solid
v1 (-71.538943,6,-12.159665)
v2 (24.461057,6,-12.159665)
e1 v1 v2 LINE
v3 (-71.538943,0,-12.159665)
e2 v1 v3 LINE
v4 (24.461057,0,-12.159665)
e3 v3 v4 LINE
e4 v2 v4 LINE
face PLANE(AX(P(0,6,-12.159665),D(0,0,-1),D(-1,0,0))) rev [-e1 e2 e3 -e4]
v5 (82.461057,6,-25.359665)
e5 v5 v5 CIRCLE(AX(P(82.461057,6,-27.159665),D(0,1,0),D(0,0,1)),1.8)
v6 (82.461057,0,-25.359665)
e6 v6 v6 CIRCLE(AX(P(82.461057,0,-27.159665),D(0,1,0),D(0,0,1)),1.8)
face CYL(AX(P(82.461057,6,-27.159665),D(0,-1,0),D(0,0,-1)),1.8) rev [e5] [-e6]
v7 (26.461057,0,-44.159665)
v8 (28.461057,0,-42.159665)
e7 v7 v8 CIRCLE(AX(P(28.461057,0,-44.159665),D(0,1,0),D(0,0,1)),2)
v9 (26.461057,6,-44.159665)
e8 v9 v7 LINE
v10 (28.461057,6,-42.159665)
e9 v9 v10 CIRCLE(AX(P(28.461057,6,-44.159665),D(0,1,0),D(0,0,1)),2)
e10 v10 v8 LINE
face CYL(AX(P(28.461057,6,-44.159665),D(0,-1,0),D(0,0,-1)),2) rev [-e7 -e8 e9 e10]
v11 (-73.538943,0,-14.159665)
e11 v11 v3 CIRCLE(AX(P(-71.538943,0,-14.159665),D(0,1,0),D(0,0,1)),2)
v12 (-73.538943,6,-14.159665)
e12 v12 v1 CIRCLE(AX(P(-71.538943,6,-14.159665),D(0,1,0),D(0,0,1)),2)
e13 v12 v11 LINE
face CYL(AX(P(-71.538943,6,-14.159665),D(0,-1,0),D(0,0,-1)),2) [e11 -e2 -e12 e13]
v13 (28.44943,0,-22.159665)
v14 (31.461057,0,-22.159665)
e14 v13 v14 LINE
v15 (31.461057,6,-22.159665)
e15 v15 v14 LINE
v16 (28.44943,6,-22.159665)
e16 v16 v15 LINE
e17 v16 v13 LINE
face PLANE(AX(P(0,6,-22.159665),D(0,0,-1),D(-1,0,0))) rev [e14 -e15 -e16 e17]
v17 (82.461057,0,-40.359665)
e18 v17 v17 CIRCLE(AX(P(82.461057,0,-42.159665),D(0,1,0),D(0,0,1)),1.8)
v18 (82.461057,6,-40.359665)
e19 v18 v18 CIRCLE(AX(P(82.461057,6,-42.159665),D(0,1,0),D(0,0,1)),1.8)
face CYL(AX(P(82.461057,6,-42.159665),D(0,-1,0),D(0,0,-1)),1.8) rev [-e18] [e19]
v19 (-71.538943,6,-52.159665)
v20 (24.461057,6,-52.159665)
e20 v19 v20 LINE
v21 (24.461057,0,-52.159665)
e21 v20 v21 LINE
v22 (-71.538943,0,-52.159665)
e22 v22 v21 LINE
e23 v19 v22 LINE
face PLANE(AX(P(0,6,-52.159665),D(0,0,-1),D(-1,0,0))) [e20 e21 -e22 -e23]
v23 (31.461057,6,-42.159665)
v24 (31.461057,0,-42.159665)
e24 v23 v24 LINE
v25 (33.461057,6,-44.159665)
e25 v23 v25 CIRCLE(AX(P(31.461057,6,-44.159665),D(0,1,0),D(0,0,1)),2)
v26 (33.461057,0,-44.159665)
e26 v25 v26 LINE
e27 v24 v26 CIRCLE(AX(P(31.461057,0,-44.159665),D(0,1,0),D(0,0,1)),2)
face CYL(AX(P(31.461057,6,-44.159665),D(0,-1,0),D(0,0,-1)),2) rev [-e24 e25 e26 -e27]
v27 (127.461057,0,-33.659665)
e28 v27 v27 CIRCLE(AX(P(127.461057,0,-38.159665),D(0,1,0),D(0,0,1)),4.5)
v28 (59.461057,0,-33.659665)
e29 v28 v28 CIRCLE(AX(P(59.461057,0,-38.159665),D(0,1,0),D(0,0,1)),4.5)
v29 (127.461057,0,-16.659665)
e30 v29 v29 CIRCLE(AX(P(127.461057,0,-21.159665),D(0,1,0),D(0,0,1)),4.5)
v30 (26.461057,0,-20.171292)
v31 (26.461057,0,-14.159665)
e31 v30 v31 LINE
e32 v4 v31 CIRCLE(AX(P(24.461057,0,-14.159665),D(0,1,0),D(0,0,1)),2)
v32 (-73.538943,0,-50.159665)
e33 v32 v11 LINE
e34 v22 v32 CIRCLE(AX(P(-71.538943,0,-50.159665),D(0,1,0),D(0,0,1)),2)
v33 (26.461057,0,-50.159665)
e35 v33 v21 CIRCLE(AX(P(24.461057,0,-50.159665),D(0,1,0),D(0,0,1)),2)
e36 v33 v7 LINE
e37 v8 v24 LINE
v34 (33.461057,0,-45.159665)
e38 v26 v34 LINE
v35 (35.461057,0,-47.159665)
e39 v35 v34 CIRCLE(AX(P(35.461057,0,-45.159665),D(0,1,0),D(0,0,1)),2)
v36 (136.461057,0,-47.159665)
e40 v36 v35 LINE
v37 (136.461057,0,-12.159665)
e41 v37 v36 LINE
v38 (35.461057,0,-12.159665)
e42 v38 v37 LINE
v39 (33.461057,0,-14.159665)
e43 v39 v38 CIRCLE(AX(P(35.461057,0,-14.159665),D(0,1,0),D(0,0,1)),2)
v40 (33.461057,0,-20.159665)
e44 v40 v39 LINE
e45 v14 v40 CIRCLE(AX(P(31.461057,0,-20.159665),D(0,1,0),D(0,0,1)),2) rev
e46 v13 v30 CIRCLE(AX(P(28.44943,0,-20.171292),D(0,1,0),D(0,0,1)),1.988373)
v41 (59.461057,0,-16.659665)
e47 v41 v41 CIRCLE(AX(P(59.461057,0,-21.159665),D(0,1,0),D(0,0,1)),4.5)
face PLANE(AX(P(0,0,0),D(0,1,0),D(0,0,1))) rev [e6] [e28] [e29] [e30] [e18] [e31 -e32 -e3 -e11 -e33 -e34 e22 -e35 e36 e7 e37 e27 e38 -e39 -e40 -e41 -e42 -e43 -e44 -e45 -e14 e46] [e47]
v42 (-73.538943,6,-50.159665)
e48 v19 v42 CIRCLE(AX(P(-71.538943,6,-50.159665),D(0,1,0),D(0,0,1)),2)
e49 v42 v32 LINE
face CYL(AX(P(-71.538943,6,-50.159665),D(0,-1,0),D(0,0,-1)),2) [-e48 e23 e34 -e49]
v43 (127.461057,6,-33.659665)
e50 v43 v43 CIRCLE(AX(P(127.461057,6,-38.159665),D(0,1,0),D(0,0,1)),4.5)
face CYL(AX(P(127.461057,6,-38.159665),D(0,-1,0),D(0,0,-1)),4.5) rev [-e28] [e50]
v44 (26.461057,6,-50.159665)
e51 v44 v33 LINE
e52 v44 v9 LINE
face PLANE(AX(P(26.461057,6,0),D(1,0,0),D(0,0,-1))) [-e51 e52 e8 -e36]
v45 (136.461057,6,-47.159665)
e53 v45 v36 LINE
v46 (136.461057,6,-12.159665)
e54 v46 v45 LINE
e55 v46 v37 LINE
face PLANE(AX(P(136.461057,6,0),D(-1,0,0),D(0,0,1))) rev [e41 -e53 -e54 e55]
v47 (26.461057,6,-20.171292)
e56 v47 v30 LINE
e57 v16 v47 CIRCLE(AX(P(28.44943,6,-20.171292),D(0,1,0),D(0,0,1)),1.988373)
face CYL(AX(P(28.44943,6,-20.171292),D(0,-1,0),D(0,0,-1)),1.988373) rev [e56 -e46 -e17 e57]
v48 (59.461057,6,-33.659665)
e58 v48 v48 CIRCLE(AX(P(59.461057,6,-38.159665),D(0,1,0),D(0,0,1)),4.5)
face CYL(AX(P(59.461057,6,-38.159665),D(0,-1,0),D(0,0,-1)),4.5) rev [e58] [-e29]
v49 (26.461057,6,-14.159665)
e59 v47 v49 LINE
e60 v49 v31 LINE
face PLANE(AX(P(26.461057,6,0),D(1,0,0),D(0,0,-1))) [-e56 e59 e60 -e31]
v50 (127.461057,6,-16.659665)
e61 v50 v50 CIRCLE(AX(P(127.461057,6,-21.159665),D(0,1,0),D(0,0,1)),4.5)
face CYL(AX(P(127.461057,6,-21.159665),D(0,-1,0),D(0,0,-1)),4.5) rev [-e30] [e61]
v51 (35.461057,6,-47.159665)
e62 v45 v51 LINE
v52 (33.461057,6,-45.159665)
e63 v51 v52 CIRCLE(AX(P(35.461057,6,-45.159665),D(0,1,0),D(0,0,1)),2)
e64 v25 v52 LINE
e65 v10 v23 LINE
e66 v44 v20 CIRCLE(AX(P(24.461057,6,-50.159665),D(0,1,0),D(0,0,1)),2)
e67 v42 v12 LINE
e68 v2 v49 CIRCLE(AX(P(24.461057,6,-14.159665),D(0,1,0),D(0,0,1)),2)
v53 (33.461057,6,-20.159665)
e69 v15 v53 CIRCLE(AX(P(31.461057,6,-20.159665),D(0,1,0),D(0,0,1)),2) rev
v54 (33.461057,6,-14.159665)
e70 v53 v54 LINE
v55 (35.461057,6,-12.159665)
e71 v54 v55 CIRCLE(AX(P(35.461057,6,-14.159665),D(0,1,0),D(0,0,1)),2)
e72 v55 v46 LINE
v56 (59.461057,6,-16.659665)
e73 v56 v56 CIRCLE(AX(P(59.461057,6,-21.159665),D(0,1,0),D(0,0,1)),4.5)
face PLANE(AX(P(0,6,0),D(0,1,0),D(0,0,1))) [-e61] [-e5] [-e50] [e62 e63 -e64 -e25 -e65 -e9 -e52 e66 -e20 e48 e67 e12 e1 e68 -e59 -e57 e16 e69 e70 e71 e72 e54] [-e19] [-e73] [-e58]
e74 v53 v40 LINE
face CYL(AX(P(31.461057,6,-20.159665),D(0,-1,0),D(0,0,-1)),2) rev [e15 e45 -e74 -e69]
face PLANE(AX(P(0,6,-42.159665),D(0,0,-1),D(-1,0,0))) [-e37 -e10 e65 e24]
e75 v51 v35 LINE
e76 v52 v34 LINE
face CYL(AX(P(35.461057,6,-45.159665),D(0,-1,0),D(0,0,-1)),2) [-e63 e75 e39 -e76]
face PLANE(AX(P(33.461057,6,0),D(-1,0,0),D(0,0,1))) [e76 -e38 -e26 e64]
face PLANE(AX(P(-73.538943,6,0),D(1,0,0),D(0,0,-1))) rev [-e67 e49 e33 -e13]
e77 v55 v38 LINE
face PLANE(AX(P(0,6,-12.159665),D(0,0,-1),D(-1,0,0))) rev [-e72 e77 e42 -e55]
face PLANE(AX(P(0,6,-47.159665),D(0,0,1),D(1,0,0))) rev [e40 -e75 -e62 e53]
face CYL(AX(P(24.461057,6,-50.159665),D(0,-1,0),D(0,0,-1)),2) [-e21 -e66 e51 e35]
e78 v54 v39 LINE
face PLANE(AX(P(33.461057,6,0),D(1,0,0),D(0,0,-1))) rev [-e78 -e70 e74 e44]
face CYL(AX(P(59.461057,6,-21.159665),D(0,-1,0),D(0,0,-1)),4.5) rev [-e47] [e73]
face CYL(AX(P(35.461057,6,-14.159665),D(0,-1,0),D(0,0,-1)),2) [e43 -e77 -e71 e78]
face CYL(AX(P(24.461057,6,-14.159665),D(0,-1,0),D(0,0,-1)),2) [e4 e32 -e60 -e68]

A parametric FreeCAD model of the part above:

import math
import FreeCAD as App
import Part
import Sketcher

V = App.Vector

doc = App.newDocument("Part")
body = doc.addObject("PartDesign::Body", "Body")

sketch1 = doc.addObject("Sketcher::SketchObject", "Sketch")
body.addObject(sketch1)
sketch1.AttachmentSupport = (doc.XZ_Plane, [""])
sketch1.MapMode = "FlatFace"
sketch1.addGeometry([
    Part.LineSegment(V(136.5, -47.2, 0), V(35.5, -47.2, 0)),
    Part.ArcOfCircle(Part.Circle(V(35.5, -45.2, 0), V(0, 0, 1), 2), math.radians(-180), math.radians(-90)),
    Part.LineSegment(V(33.5, -45.2, 0), V(33.5, -44.2, 0)),
    Part.ArcOfCircle(Part.Circle(V(31.5, -44.2, 0), V(0, 0, 1), 2), math.radians(0), math.radians(90)),
    Part.LineSegment(V(31.5, -42.2, 0), V(28.5, -42.2, 0)),
    Part.ArcOfCircle(Part.Circle(V(28.5, -44.2, 0), V(0, 0, 1), 2), math.radians(90), math.radians(180)),
    Part.LineSegment(V(26.5, -44.2, 0), V(26.5, -50.2, 0)),
    Part.ArcOfCircle(Part.Circle(V(24.5, -50.2, 0), V(0, 0, 1), 2), math.radians(-90), math.radians(0)),
    Part.LineSegment(V(24.5, -52.2, 0), V(-71.5, -52.2, 0)),
    Part.ArcOfCircle(Part.Circle(V(-71.5, -50.2, 0), V(0, 0, 1), 2), math.radians(-180), math.radians(-90)),
    Part.LineSegment(V(-73.5, -50.2, 0), V(-73.5, -14.2, 0)),
    Part.ArcOfCircle(Part.Circle(V(-71.5, -14.2, 0), V(0, 0, 1), 2), math.radians(90), math.radians(180)),
    Part.LineSegment(V(-71.5, -12.2, 0), V(24.5, -12.2, 0)),
    Part.ArcOfCircle(Part.Circle(V(24.5, -14.2, 0), V(0, 0, 1), 2), math.radians(0), math.radians(90)),
    Part.LineSegment(V(26.5, -14.2, 0), V(26.5, -20.2, 0)),
    Part.ArcOfCircle(Part.Circle(V(28.4, -20.2, 0), V(0, 0, 1), 2), math.radians(-180), math.radians(-90)),
    Part.LineSegment(V(28.4, -22.2, 0), V(31.5, -22.2, 0)),
    Part.ArcOfCircle(Part.Circle(V(31.5, -20.2, 0), V(0, 0, 1), 2), math.radians(-90), math.radians(0)),
    Part.LineSegment(V(33.5, -20.2, 0), V(33.5, -14.2, 0)),
    Part.ArcOfCircle(Part.Circle(V(35.5, -14.2, 0), V(0, 0, 1), 2), math.radians(90), math.radians(180)),
    Part.LineSegment(V(35.5, -12.2, 0), V(136.5, -12.2, 0)),
    Part.LineSegment(V(136.5, -12.2, 0), V(136.5, -47.2, 0)),
    Part.Circle(V(59.5, -21.2, 0), V(0, 0, 1), 4.5),
    Part.Circle(V(82.5, -27.2, 0), V(0, 0, 1), 1.8),
    Part.Circle(V(127.5, -21.2, 0), V(0, 0, 1), 4.5),
    Part.Circle(V(59.5, -38.2, 0), V(0, 0, 1), 4.5),
    Part.Circle(V(82.5, -42.2, 0), V(0, 0, 1), 1.8),
    Part.Circle(V(127.5, -38.2, 0), V(0, 0, 1), 4.5),
], False)
sketch1.addConstraint([
    Sketcher.Constraint("Tangent", 0, 2, 1, 2),
    Sketcher.Constraint("Tangent", 1, 1, 2, 1),
    Sketcher.Constraint("Tangent", 2, 2, 3, 1),
    Sketcher.Constraint("Tangent", 3, 2, 4, 1),
    Sketcher.Constraint("Tangent", 4, 2, 5, 1),
    Sketcher.Constraint("Tangent", 5, 2, 6, 1),
    Sketcher.Constraint("Tangent", 6, 2, 7, 2),
    Sketcher.Constraint("Tangent", 7, 1, 8, 1),
    Sketcher.Constraint("Tangent", 8, 2, 9, 2),
    Sketcher.Constraint("Tangent", 9, 1, 10, 1),
    Sketcher.Constraint("Tangent", 10, 2, 11, 2),
    Sketcher.Constraint("Tangent", 11, 1, 12, 1),
    Sketcher.Constraint("Tangent", 12, 2, 13, 2),
    Sketcher.Constraint("Tangent", 13, 1, 14, 1),
    Sketcher.Constraint("Tangent", 14, 2, 15, 1),
    Sketcher.Constraint("Tangent", 15, 2, 16, 1),
    Sketcher.Constraint("Tangent", 16, 2, 17, 1),
    Sketcher.Constraint("Tangent", 17, 2, 18, 1),
    Sketcher.Constraint("Tangent", 18, 2, 19, 2),
    Sketcher.Constraint("Tangent", 19, 1, 20, 1),
    Sketcher.Constraint("Coincident", 20, 2, 21, 1),
    Sketcher.Constraint("Coincident", 21, 2, 0, 1),
    Sketcher.Constraint("Horizontal", 0),
    Sketcher.Constraint("Vertical", 2),
    Sketcher.Constraint("Horizontal", 4),
    Sketcher.Constraint("Vertical", 6),
    Sketcher.Constraint("Horizontal", 8),
    Sketcher.Constraint("Vertical", 10),
    Sketcher.Constraint("Horizontal", 12),
    Sketcher.Constraint("Vertical", 14),
    Sketcher.Constraint("Horizontal", 16),
    Sketcher.Constraint("Vertical", 18),
    Sketcher.Constraint("Horizontal", 20),
    Sketcher.Constraint("Vertical", 21),
    Sketcher.Constraint("Equal", 1, 3),
    Sketcher.Constraint("Equal", 3, 5),
    Sketcher.Constraint("Equal", 5, 7),
    Sketcher.Constraint("Equal", 7, 9),
    Sketcher.Constraint("Equal", 9, 11),
    Sketcher.Constraint("Equal", 11, 13),
    Sketcher.Constraint("Equal", 13, 17),
    Sketcher.Constraint("Equal", 17, 19),
    Sketcher.Constraint("Equal", 22, 24),
    Sketcher.Constraint("Equal", 24, 25),
    Sketcher.Constraint("Equal", 23, 26),
    Sketcher.Constraint("Equal", 25, 27),
    Sketcher.Constraint("Horizontal", 13, 3, 19, 3),
    Sketcher.Constraint("Horizontal", 22, 3, 24, 3),
    Sketcher.Constraint("Horizontal", 25, 3, 27, 3),
    Sketcher.Constraint("Horizontal", 26, 3, 3, 2),
    Sketcher.Constraint("Vertical", 7, 3, 13, 3),
    Sketcher.Constraint("Vertical", 3, 3, 17, 3),
    Sketcher.Constraint("Vertical", 22, 3, 25, 3),
    Sketcher.Constraint("Vertical", 23, 3, 26, 3),
    Sketcher.Constraint("Vertical", 24, 3, 27, 3),
    Sketcher.Constraint("Equal", 6, 18),
    Sketcher.Constraint("Diameter", 22, 9.0),
    Sketcher.Constraint("Radius", 1, 2.0),
    Sketcher.Constraint("Diameter", 23, 3.6),
    Sketcher.Constraint("DistanceX", 0, 2, 0, 1, 101.0),
    Sketcher.Constraint("DistanceX", 4, 2, 4, 1, 3.0),
    Sketcher.Constraint("DistanceX", 8, 2, 8, 1, 96.0),
    Sketcher.Constraint("DistanceY", 2, 1, 2, 2, 1.0),
    Sketcher.Constraint("DistanceY", 6, 2, 6, 1, 6.0),
    Sketcher.Constraint("DistanceY", 10, 1, 10, 2, 36.0),
    Sketcher.Constraint("DistanceX", 19, 3, 22, 3, 24.0),
    Sketcher.Constraint("DistanceY", 22, 3, 19, 3, 7.0),
    Sketcher.Constraint("DistanceX", 22, 3, 23, 3, 23.0),
    Sketcher.Constraint("DistanceY", 23, 3, 22, 3, 6.0),
    Sketcher.Constraint("DistanceX", 23, 3, 24, 3, 45.0),
    Sketcher.Constraint("DistanceY", 25, 3, 22, 3, 17.0),
    Sketcher.Constraint("Radius", 15, 1.988373),
    Sketcher.Constraint("DistanceX", -1, 1, 15, 3, 28.44943),
    Sketcher.Constraint("DistanceY", 1, 3, -1, 1, 45.159665),
])
pad1 = doc.addObject("PartDesign::Pad", "Pad")
body.addObject(pad1)
pad1.Profile = sketch1
pad1.Length = 6
pad1.Reversed = True

doc.recompute()
